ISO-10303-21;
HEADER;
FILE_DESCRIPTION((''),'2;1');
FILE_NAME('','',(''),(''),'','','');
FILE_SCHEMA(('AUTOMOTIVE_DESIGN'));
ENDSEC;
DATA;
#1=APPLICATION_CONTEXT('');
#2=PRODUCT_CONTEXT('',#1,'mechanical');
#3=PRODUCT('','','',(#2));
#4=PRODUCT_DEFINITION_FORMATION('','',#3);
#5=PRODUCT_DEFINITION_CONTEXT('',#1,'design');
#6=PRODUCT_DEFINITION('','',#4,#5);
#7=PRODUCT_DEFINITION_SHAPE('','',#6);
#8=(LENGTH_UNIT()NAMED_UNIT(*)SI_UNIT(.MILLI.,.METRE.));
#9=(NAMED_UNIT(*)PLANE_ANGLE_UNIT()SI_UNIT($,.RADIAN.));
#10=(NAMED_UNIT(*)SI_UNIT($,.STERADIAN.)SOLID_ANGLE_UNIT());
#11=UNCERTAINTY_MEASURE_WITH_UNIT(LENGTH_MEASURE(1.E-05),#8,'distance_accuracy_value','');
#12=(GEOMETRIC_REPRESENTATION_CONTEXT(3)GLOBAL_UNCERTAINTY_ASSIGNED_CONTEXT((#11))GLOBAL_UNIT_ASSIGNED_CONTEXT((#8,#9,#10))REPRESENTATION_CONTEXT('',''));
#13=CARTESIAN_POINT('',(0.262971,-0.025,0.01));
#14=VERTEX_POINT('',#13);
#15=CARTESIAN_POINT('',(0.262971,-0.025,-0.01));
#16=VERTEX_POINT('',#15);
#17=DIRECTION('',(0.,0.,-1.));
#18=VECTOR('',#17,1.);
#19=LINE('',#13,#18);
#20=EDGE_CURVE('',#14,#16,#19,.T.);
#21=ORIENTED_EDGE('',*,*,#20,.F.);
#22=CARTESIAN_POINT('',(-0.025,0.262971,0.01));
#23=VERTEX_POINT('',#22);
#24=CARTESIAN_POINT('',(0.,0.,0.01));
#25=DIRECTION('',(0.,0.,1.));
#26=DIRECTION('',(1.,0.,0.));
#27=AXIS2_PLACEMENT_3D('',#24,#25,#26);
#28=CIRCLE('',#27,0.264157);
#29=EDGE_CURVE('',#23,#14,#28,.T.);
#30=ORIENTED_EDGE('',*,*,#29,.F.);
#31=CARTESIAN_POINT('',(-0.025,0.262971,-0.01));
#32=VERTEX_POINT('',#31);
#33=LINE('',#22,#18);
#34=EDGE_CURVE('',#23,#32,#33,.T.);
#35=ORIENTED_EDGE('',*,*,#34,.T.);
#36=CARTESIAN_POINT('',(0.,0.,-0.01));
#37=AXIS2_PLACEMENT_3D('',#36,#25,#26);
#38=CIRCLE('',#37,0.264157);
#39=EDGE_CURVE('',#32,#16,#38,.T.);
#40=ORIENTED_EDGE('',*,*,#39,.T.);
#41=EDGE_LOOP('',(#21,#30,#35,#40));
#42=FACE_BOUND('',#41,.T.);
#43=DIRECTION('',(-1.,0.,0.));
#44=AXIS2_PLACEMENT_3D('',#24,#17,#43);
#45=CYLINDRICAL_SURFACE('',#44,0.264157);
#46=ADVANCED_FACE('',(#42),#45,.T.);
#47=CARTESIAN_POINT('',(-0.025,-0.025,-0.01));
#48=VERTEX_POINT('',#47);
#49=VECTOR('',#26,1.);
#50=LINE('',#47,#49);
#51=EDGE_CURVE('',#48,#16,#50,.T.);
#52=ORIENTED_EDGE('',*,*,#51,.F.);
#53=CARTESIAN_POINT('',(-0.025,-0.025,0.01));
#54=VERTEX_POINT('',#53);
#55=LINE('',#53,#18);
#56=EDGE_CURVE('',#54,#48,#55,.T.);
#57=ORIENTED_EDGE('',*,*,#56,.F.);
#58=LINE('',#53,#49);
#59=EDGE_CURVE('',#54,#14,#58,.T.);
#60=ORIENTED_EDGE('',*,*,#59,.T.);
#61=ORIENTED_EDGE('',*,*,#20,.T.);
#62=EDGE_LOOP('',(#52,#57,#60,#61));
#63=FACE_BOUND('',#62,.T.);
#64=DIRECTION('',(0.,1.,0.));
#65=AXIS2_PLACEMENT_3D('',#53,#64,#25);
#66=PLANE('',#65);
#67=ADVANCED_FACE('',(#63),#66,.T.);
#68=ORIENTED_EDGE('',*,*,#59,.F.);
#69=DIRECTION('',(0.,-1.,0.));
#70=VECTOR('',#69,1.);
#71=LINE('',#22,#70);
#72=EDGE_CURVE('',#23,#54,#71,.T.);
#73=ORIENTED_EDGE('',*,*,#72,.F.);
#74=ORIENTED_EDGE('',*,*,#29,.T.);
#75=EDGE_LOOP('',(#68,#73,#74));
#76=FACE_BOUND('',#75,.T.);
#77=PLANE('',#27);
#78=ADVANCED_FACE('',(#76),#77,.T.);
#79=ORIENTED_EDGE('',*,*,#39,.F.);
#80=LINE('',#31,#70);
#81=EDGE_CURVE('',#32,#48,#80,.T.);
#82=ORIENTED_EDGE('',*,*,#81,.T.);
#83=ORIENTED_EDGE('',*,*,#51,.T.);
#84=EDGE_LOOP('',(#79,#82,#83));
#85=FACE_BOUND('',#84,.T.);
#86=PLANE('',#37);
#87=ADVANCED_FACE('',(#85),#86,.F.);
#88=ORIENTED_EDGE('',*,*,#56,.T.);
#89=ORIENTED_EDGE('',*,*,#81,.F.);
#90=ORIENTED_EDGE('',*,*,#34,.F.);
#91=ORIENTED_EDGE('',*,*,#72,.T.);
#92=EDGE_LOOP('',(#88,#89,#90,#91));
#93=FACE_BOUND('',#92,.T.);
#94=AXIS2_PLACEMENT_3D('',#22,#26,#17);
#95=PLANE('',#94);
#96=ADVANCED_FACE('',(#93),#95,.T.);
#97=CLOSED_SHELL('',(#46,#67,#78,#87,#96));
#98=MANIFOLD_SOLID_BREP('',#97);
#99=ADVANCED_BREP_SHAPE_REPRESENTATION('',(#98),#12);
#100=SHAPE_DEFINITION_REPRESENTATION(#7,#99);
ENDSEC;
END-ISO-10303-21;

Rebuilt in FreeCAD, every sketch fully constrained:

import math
import FreeCAD as App
import Part
import Sketcher
from FreeCAD import Vector

doc = App.newDocument("Part")
body = doc.addObject("PartDesign::Body", "Body")

sketch1 = body.newObject("Sketcher::SketchObject", "Sketch")
sketch1.AttachmentSupport = (doc.getObject("XY_Plane"), [""])
sketch1.MapMode = "FlatFace"
sketch1.addGeometry(Part.LineSegment(Vector(0.26, -0.03, 0), Vector(-0.03, -0.03, 0)), False)
sketch1.addGeometry(Part.LineSegment(Vector(-0.03, -0.03, 0), Vector(-0.03, 0.26, 0)), False)
sketch1.addGeometry(Part.ArcOfCircle(Part.Circle(Vector(0, 0, 0), Vector(0, 0, 1), 0.26), math.radians(95), math.radians(355)), False)
sketch1.addConstraint(Sketcher.Constraint("Coincident", 0, 2, 1, 1))
sketch1.addConstraint(Sketcher.Constraint("Coincident", 1, 2, 2, 1))
sketch1.addConstraint(Sketcher.Constraint("Coincident", 2, 2, 0, 1))
sketch1.addConstraint(Sketcher.Constraint("Horizontal", 0))
sketch1.addConstraint(Sketcher.Constraint("Vertical", 1))
sketch1.addConstraint(Sketcher.Constraint("Coincident", 2, 3, -1, 1))
sketch1.addConstraint(Sketcher.Constraint("Equal", 0, 1))
sketch1.addConstraint(Sketcher.Constraint("DistanceX", 0, 2, -1, 1, 0.025))
sketch1.addConstraint(Sketcher.Constraint("Radius", 2, 0.264157))
pad1 = body.newObject("PartDesign::Pad", "Pad")
pad1.Profile = sketch1
pad1.Length = 0.02
pad1.Midplane = True

doc.recompute()
